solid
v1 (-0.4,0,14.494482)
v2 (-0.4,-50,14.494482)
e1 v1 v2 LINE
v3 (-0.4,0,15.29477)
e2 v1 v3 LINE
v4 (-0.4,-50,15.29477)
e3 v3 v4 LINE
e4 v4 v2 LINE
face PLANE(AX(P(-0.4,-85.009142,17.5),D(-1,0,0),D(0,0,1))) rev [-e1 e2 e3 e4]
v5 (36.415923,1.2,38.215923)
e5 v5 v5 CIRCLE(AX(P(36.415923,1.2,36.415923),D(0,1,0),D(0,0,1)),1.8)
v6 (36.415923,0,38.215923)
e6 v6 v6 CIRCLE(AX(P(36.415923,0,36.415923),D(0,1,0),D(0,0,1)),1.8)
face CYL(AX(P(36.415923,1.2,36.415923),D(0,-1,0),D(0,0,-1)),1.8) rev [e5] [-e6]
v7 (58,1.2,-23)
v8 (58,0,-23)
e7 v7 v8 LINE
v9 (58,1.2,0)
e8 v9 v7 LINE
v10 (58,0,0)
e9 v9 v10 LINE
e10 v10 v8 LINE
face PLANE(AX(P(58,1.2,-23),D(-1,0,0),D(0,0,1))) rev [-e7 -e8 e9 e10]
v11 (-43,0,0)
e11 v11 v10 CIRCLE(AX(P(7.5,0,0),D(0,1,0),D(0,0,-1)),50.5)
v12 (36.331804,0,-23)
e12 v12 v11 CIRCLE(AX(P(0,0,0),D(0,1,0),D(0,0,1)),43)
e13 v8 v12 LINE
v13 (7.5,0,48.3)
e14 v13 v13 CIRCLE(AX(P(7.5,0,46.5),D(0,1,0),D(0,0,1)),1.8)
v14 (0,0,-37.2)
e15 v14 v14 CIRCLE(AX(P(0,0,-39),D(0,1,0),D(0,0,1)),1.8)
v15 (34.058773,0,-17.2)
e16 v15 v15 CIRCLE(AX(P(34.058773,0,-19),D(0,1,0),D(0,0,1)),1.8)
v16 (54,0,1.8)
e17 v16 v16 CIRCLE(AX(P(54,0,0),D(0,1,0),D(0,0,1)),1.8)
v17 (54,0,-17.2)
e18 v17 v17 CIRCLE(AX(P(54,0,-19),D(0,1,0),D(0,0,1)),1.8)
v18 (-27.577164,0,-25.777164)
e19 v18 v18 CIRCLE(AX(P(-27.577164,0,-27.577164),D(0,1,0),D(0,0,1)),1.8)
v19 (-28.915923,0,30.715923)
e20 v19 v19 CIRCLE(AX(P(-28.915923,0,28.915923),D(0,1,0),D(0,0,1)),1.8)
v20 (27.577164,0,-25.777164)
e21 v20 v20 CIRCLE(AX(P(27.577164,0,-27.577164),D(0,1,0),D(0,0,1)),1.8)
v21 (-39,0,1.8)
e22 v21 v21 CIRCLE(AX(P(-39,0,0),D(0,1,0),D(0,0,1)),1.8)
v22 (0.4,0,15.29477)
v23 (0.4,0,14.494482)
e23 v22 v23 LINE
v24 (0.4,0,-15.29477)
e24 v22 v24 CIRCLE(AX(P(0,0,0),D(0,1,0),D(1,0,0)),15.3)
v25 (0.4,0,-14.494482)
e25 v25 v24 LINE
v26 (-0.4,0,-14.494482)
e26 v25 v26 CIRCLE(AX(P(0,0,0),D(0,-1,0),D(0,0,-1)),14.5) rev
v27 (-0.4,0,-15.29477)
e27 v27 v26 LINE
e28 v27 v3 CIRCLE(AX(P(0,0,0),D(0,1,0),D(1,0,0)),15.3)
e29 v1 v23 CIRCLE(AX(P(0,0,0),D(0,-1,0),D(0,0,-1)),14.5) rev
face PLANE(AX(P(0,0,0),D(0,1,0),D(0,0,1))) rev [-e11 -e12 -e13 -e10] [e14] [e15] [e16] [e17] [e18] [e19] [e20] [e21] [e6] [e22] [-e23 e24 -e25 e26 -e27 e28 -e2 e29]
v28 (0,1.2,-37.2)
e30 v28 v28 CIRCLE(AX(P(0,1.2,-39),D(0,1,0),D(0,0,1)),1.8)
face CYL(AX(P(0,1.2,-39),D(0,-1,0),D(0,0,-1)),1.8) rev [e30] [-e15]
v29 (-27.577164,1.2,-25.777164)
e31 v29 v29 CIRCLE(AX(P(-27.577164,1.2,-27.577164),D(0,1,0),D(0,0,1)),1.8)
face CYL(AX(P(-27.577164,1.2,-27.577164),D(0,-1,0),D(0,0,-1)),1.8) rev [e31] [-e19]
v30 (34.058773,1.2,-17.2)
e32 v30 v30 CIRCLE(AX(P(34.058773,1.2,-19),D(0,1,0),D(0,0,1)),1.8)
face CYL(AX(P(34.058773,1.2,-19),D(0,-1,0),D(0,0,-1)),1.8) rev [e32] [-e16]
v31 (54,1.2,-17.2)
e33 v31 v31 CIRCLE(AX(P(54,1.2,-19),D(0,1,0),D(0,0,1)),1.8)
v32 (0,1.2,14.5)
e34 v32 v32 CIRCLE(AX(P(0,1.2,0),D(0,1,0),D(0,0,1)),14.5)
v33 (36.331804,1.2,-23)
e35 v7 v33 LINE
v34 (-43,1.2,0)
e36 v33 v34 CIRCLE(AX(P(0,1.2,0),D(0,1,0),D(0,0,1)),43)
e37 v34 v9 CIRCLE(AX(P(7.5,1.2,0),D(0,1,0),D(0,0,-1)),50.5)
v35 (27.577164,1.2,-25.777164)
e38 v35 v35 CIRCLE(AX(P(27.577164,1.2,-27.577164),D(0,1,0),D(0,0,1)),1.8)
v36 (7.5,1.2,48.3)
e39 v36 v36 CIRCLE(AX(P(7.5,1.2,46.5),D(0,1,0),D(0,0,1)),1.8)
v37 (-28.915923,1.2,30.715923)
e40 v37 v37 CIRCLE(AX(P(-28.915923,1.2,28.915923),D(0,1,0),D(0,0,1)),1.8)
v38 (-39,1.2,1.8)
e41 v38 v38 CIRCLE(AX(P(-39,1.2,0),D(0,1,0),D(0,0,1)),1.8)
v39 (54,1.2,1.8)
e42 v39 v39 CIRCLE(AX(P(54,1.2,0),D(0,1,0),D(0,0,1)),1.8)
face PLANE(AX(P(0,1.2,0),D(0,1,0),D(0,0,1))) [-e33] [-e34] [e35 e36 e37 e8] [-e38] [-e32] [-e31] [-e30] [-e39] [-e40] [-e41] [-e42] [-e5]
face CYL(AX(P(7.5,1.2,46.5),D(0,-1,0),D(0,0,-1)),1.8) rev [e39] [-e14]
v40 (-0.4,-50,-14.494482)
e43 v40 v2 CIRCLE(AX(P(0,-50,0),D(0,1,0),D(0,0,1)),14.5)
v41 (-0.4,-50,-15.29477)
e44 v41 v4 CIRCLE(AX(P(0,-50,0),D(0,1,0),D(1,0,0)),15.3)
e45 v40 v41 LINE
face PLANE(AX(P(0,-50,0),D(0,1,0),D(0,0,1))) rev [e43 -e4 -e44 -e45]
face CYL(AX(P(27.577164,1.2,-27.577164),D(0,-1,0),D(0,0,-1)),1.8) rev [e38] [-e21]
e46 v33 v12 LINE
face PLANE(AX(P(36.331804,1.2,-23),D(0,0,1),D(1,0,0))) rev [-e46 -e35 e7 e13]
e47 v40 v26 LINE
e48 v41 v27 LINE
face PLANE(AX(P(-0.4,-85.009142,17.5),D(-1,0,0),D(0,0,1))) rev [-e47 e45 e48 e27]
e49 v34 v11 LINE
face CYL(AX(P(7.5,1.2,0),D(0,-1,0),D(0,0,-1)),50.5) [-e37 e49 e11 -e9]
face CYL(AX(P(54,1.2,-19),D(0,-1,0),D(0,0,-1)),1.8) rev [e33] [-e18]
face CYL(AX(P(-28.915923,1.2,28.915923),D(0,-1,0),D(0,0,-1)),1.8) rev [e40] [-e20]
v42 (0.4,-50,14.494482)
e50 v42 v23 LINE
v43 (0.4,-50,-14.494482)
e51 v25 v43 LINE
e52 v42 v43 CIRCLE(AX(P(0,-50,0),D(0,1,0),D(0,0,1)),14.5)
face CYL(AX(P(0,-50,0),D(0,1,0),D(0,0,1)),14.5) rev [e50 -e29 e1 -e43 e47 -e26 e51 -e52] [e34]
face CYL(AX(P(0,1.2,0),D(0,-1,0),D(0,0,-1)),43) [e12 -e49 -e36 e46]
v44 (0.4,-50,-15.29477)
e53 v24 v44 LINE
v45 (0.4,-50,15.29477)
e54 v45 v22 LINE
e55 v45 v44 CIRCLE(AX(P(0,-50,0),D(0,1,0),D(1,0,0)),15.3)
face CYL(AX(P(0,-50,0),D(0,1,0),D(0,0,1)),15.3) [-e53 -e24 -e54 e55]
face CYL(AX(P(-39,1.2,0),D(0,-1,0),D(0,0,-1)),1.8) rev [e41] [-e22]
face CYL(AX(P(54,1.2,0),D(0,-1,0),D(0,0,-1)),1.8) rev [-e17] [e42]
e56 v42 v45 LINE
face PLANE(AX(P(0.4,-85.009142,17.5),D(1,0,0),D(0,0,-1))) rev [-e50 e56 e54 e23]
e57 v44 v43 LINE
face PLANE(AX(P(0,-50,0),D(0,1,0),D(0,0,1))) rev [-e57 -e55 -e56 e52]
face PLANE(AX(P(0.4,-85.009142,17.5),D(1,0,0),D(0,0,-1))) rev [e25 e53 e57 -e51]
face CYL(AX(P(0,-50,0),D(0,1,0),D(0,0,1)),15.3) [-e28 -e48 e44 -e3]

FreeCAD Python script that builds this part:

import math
import FreeCAD as App
import Part
import Sketcher

V = App.Vector
Q = App.Units.Quantity


def add_polygon(sketch, points):
    """Adds a closed chain of lines whose ends are joined by coincident constraints."""
    first, n = sketch.GeometryCount, len(points)
    for a, b in zip(points, points[1:] + points[:1]):
        sketch.addGeometry(Part.LineSegment(App.Vector(*a, 0), App.Vector(*b, 0)), False)
    for i in range(n):
        sketch.addConstraint(Sketcher.Constraint("Coincident", first + i, 2, first + (i + 1) % n, 1))

doc = App.newDocument("Part")
params = doc.addObject("Spreadsheet::Sheet", "Params")
for row, (alias, value) in enumerate([
    ("sketch1_radius", "35 mm"),
    ("sketch1_radius2", "42.5 mm"),
    ("pad1_length", "1.2 mm"),
    ("sketch2_diameter", "29 mm"),
    ("sketch2_diameter2", "30.6 mm"),
    ("pad2_length", "50 mm"),
    ("sketch3_radius", "43 mm"),
    ("sketch3_radius2", "35 mm"),
    ("sketch3_radius3", "50.5 mm"),
    ("sketch3_height", "23 mm"),
    ("pad3_length", "1.2 mm"),
    ("sketch4_diameter", "3.6 mm"),
    ("sketch5_diameter", "29 mm"),
    ("sketch6_height", "35 mm"),
    ("sketch6_width", "0.8 mm"),
    ("pocket3_length", "50 mm"),
], start=1):
    params.set(f"A{row}", alias)
    params.set(f"B{row}", "=" + value)
    params.setAlias(f"B{row}", alias)

body = doc.addObject("PartDesign::Body", "Body")

# Sketch on XZ plane
sketch1 = body.newObject("Sketcher::SketchObject", "Sketch")
sketch1.AttachmentSupport = (doc.getObject("XZ_Plane"), [""])
sketch1.MapMode = "FlatFace"
sketch1.addGeometry(Part.LineSegment(V(35, -15, 0), V(35, 0, 0)), False)
sketch1.addGeometry(Part.ArcOfCircle(Part.Circle(V(0, 0, 0), V(0, 0, 1), 35), math.radians(180), math.radians(360)), False)
sketch1.addGeometry(Part.ArcOfCircle(Part.Circle(V(8, 0, 0), V(0, 0, 1), 42), math.radians(0), math.radians(180)), False)
sketch1.addGeometry(Part.LineSegment(V(50, 0, 0), V(50, -15, 0)), False)
sketch1.addGeometry(Part.LineSegment(V(50, -15, 0), V(35, -15, 0)), False)
sketch1.addConstraint(Sketcher.Constraint("Tangent", 0, 2, 1, 2))
sketch1.addConstraint(Sketcher.Constraint("Tangent", 1, 1, 2, 2))
sketch1.addConstraint(Sketcher.Constraint("Tangent", 2, 1, 3, 1))
sketch1.addConstraint(Sketcher.Constraint("Coincident", 3, 2, 4, 1))
sketch1.addConstraint(Sketcher.Constraint("Coincident", 4, 2, 0, 1))
sketch1.addConstraint(Sketcher.Constraint("Vertical", 0))
sketch1.addConstraint(Sketcher.Constraint("Vertical", 3))
sketch1.addConstraint(Sketcher.Constraint("Horizontal", 4))
sketch1.addConstraint(Sketcher.Constraint("Coincident", 1, 3, -1, 1))
sketch1.addConstraint(Sketcher.Constraint("PointOnObject", 2, 3, -1))
sketch1.addConstraint(Sketcher.Constraint("Equal", 4, 0))
sketch1.addConstraint(Sketcher.Constraint("Radius", 1, Q("35 mm")))
sketch1.addConstraint(Sketcher.Constraint("Radius", 2, Q("42.5 mm")))
sketch1.setExpression("Constraints[11]", "Params.sketch1_radius")
sketch1.setExpression("Constraints[12]", "Params.sketch1_radius2")
pad1 = body.newObject("PartDesign::Pad", "Pad")
pad1.Profile = sketch1
pad1.setExpression("Length", "Params.pad1_length")
pad1.Reversed = True

# Sketch on XZ plane
sketch2 = body.newObject("Sketcher::SketchObject", "Sketch001")
sketch2.AttachmentSupport = (doc.getObject("XZ_Plane"), [""])
sketch2.MapMode = "FlatFace"
sketch2.addGeometry(Part.Circle(V(0, 0, 0), V(0, 0, 1), 15), False)
sketch2.addGeometry(Part.Circle(V(0, 0, 0), V(0, 0, 1), 14), False)
sketch2.addConstraint(Sketcher.Constraint("Coincident", 0, 3, -1, 1))
sketch2.addConstraint(Sketcher.Constraint("Coincident", 1, 3, -1, 1))
sketch2.addConstraint(Sketcher.Constraint("Diameter", 1, Q("29 mm")))
sketch2.addConstraint(Sketcher.Constraint("Diameter", 0, Q("30.6 mm")))
sketch2.setExpression("Constraints[2]", "Params.sketch2_diameter")
sketch2.setExpression("Constraints[3]", "Params.sketch2_diameter2")
pad2 = body.newObject("PartDesign::Pad", "Pad001")
pad2.Profile = sketch2
pad2.setExpression("Length", "Params.pad2_length")

# Sketch on XZ plane
sketch3 = body.newObject("Sketcher::SketchObject", "Sketch002")
sketch3.AttachmentSupport = (doc.getObject("XZ_Plane"), [""])
sketch3.MapMode = "FlatFace"
sketch3.addGeometry(Part.LineSegment(V(58, -23, 0), V(36, -23, 0)), False)
sketch3.addGeometry(Part.ArcOfCircle(Part.Circle(V(0, 0, 0), V(0, 0, 1), 43), math.radians(180), math.radians(328)), False)
sketch3.addGeometry(Part.ArcOfCircle(Part.Circle(V(8, 0, 0), V(0, 0, 1), 50), math.radians(0), math.radians(180)), False)
sketch3.addGeometry(Part.LineSegment(V(58, 0, 0), V(58, -23, 0)), False)
sketch3.addGeometry(Part.LineSegment(V(35, 0, 0), V(35, -15, 0)), False)
sketch3.addGeometry(Part.LineSegment(V(35, -15, 0), V(50, -15, 0)), False)
sketch3.addGeometry(Part.LineSegment(V(50, -15, 0), V(50, 0, 0)), False)
sketch3.addGeometry(Part.ArcOfCircle(Part.Circle(V(8, 0, 0), V(0, 0, 1), 42), math.radians(0), math.radians(180)), False)
sketch3.addGeometry(Part.ArcOfCircle(Part.Circle(V(0, 0, 0), V(0, 0, 1), 35), math.radians(180), math.radians(360)), False)
sketch3.addConstraint(Sketcher.Constraint("Coincident", 0, 2, 1, 2))
sketch3.addConstraint(Sketcher.Constraint("Tangent", 1, 1, 2, 2))
sketch3.addConstraint(Sketcher.Constraint("Tangent", 2, 1, 3, 1))
sketch3.addConstraint(Sketcher.Constraint("Coincident", 3, 2, 0, 1))
sketch3.addConstraint(Sketcher.Constraint("Coincident", 4, 2, 5, 1))
sketch3.addConstraint(Sketcher.Constraint("Coincident", 5, 2, 6, 1))
sketch3.addConstraint(Sketcher.Constraint("Tangent", 6, 2, 7, 1))
sketch3.addConstraint(Sketcher.Constraint("Tangent", 7, 2, 8, 1))
sketch3.addConstraint(Sketcher.Constraint("Tangent", 8, 2, 4, 1))
sketch3.addConstraint(Sketcher.Constraint("Horizontal", 0))
sketch3.addConstraint(Sketcher.Constraint("Vertical", 3))
sketch3.addConstraint(Sketcher.Constraint("Vertical", 4))
sketch3.addConstraint(Sketcher.Constraint("Horizontal", 5))
sketch3.addConstraint(Sketcher.Constraint("Vertical", 6))
sketch3.addConstraint(Sketcher.Constraint("Coincident", 1, 3, -1, 1))
sketch3.addConstraint(Sketcher.Constraint("Coincident", 8, 3, -1, 1))
sketch3.addConstraint(Sketcher.Constraint("Coincident", 7, 3, 2, 3))
sketch3.addConstraint(Sketcher.Constraint("PointOnObject", 2, 3, -1))
sketch3.addConstraint(Sketcher.Constraint("Equal", 5, 4))
sketch3.addConstraint(Sketcher.Constraint("Radius", 1, Q("43 mm")))
sketch3.addConstraint(Sketcher.Constraint("Radius", 8, Q("35 mm")))
sketch3.addConstraint(Sketcher.Constraint("Radius", 2, Q("50.5 mm")))
sketch3.addConstraint(Sketcher.Constraint("DistanceY", 3, 2, 3, 1, Q("23 mm")))
sketch3.setExpression("Constraints[19]", "Params.sketch3_radius")
sketch3.setExpression("Constraints[20]", "Params.sketch3_radius2")
sketch3.setExpression("Constraints[21]", "Params.sketch3_radius3")
sketch3.setExpression("Constraints[22]", "Params.sketch3_height")
pad3 = body.newObject("PartDesign::Pad", "Pad002")
pad3.Profile = sketch3
pad3.setExpression("Length", "Params.pad3_length")
pad3.Reversed = True

# Sketch on XZ plane
sketch4 = body.newObject("Sketcher::SketchObject", "Sketch003")
sketch4.AttachmentSupport = (doc.getObject("XZ_Plane"), [""])
sketch4.MapMode = "FlatFace"
sketch4.addGeometry(Part.Circle(V(34.1, -19, 0), V(0, 0, 1), 1.8), False)
sketch4.addGeometry(Part.Circle(V(54, -19, 0), V(0, 0, 1), 1.8), False)
sketch4.addGeometry(Part.Circle(V(54, 0, 0), V(0, 0, 1), 1.8), False)
sketch4.addGeometry(Part.Circle(V(7.5, 46.5, 0), V(0, 0, 1), 1.8), False)
sketch4.addGeometry(Part.Circle(V(-39, 0, 0), V(0, 0, 1), 1.8), False)
sketch4.addGeometry(Part.Circle(V(0, -39, 0), V(0, 0, 1), 1.8), False)
sketch4.addGeometry(Part.Circle(V(36.4, 36.4, 0), V(0, 0, 1), 1.8), False)
sketch4.addGeometry(Part.Circle(V(-28.9, 28.9, 0), V(0, 0, 1), 1.8), False)
sketch4.addGeometry(Part.Circle(V(-27.6, -27.6, 0), V(0, 0, 1), 1.8), False)
sketch4.addGeometry(Part.Circle(V(27.6, -27.6, 0), V(0, 0, 1), 1.8), False)
sketch4.addConstraint(Sketcher.Constraint("Equal", 0, 1))
sketch4.addConstraint(Sketcher.Constraint("Equal", 1, 2))
sketch4.addConstraint(Sketcher.Constraint("Equal", 2, 3))
sketch4.addConstraint(Sketcher.Constraint("Equal", 3, 4))
sketch4.addConstraint(Sketcher.Constraint("Equal", 4, 5))
sketch4.addConstraint(Sketcher.Constraint("Equal", 5, 6))
sketch4.addConstraint(Sketcher.Constraint("Equal", 6, 7))
sketch4.addConstraint(Sketcher.Constraint("Equal", 7, 8))
sketch4.addConstraint(Sketcher.Constraint("Equal", 8, 9))
sketch4.addConstraint(Sketcher.Constraint("Symmetric", 8, 3, 9, 3, -2))
sketch4.addConstraint(Sketcher.Constraint("PointOnObject", 2, 3, -1))
sketch4.addConstraint(Sketcher.Constraint("PointOnObject", 4, 3, -1))
sketch4.addConstraint(Sketcher.Constraint("PointOnObject", 5, 3, -2))
sketch4.addConstraint(Sketcher.Constraint("Horizontal", 0, 3, 1, 3))
sketch4.addConstraint(Sketcher.Constraint("Vertical", 1, 3, 2, 3))
sketch4.addConstraint(Sketcher.Constraint("Diameter", 0, Q("3.6 mm")))
sketch4.addConstraint(Sketcher.Constraint("DistanceY", 0, 3, -1, 1, Q("19 mm")))
sketch4.addConstraint(Sketcher.Constraint("DistanceX", -1, 1, 1, 3, Q("54 mm")))
sketch4.addConstraint(Sketcher.Constraint("DistanceX", 4, 3, -1, 1, Q("39 mm")))
sketch4.addConstraint(Sketcher.Constraint("DistanceY", 5, 3, -1, 1, Q("39 mm")))
sketch4.addConstraint(Sketcher.Constraint("DistanceX", -1, 1, 3, 3, Q("7.5 mm")))
sketch4.addConstraint(Sketcher.Constraint("DistanceY", -1, 1, 3, 3, Q("46.5 mm")))
sketch4.addConstraint(Sketcher.Constraint("DistanceY", 7, 3, 6, 3, Q("7.5 mm")))
sketch4.addConstraint(Sketcher.Constraint("DistanceX", 0, 3, 6, 3, Q("2.35715 mm")))
sketch4.addConstraint(Sketcher.Constraint("DistanceX", 7, 3, 8, 3, Q("1.338758 mm")))
sketch4.addConstraint(Sketcher.Constraint("DistanceX", 9, 3, 0, 3, Q("6.481608 mm")))
sketch4.addConstraint(Sketcher.Constraint("DistanceX", 8, 3, 9, 3, Q("55.154329 mm")))
sketch4.addConstraint(Sketcher.Constraint("DistanceY", -1, 1, 6, 3, Q("36.415923 mm")))
sketch4.addConstraint(Sketcher.Constraint("DistanceY", 8, 3, -1, 1, Q("27.577164 mm")))
sketch4.setExpression("Constraints[15]", "Params.sketch4_diameter")
pocket1 = body.newObject("PartDesign::Pocket", "Pocket")
pocket1.Profile = sketch4
pocket1.Type = "ThroughAll"

# Sketch on XZ plane
sketch5 = body.newObject("Sketcher::SketchObject", "Sketch004")
sketch5.AttachmentSupport = (doc.getObject("XZ_Plane"), [""])
sketch5.MapMode = "FlatFace"
sketch5.addGeometry(Part.Circle(V(0, 0, 0), V(0, 0, 1), 14), False)
sketch5.addConstraint(Sketcher.Constraint("Coincident", 0, 3, -1, 1))
sketch5.addConstraint(Sketcher.Constraint("Diameter", 0, Q("29 mm")))
sketch5.setExpression("Constraints[1]", "Params.sketch5_diameter")
pocket2 = body.newObject("PartDesign::Pocket", "Pocket001")
pocket2.Profile = sketch5
pocket2.Type = "ThroughAll"

# Sketch on XZ plane
sketch6 = body.newObject("Sketcher::SketchObject", "Sketch005")
sketch6.AttachmentSupport = (doc.getObject("XZ_Plane"), [""])
sketch6.MapMode = "FlatFace"
sketch6.AttachmentOffset = App.Placement(V(0, 0, 50), App.Rotation())
add_polygon(sketch6, [(-0.4, -17.5), (-0.4, 17.5), (0.4, 17.5), (0.4, -17.5)])  # lines 0-3
sketch6.addConstraint(Sketcher.Constraint("Vertical", 0))
sketch6.addConstraint(Sketcher.Constraint("Horizontal", 1))
sketch6.addConstraint(Sketcher.Constraint("Vertical", 2))
sketch6.addConstraint(Sketcher.Constraint("Horizontal", 3))
sketch6.addConstraint(Sketcher.Constraint("Symmetric", 0, 2, 2, 2, -1, 1))
sketch6.addConstraint(Sketcher.Constraint("DistanceY", 0, 1, 0, 2, Q("35 mm")))
sketch6.addConstraint(Sketcher.Constraint("DistanceX", 1, 1, 1, 2, Q("0.8 mm")))
sketch6.setExpression("Constraints[9]", "Params.sketch6_height")
sketch6.setExpression("Constraints[10]", "Params.sketch6_width")
pocket3 = body.newObject("PartDesign::Pocket", "Pocket002")
pocket3.Profile = sketch6
pocket3.setExpression("Length", "Params.pocket3_length")

doc.recompute()
